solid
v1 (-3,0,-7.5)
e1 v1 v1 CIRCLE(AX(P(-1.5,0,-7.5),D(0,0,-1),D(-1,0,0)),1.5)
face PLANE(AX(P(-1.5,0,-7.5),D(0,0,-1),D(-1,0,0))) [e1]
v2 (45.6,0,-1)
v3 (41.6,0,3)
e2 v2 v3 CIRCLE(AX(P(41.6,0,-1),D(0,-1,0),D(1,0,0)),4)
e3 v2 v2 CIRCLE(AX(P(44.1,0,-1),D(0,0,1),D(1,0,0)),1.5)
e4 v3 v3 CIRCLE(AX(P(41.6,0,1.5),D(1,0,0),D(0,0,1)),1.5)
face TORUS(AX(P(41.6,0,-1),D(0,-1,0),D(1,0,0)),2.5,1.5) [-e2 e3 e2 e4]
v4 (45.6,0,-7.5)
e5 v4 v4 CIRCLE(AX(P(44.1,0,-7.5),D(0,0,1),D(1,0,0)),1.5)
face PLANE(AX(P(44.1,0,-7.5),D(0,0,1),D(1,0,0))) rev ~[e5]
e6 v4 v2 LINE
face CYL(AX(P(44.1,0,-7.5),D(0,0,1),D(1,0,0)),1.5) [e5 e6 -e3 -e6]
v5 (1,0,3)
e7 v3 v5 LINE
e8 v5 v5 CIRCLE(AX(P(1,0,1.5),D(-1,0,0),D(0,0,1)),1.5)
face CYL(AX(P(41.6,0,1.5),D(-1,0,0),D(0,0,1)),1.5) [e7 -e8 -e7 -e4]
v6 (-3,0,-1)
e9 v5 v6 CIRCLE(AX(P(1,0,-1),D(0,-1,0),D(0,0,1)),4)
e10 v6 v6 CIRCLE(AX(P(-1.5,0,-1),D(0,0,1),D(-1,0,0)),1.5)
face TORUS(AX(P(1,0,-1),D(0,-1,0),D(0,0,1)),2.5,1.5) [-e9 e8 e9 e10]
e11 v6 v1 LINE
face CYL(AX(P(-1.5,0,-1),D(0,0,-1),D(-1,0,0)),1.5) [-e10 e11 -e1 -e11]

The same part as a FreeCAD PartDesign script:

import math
import FreeCAD as App
import Part
import Sketcher

V = App.Vector
Q = App.Units.Quantity

doc = App.newDocument("Part")
body = doc.addObject("PartDesign::Body", "Body")

# Sketch on XY plane
sketch1 = doc.addObject("Sketcher::SketchObject", "Sketch")
body.addObject(sketch1)
sketch1.AttachmentSupport = (doc.XY_Plane, [""])
sketch1.MapMode = "FlatFace"
sketch1.AttachmentOffset = App.Placement(V(0, 0, -7.5), App.Rotation())
sketch1.addGeometry(Part.Circle(V(44.1, 0, 0), V(0, 0, 1), 1.5), False)
sketch1.addConstraint(Sketcher.Constraint("PointOnObject", 0, 3, -1))
sketch1.addConstraint(Sketcher.Constraint("Diameter", 0, Q("3 mm")))
sketch1.addConstraint(Sketcher.Constraint("DistanceX", -1, 1, 0, 3, Q("44.1 mm")))

# Sketch on XZ plane
sketch2 = doc.addObject("Sketcher::SketchObject", "Sketch001")
body.addObject(sketch2)
sketch2.AttachmentSupport = (doc.XZ_Plane, [""])
sketch2.MapMode = "FlatFace"
sketch2.addGeometry(Part.LineSegment(V(42.6, -7.5, 0), V(42.6, -1, 0)), False)
sketch2.addGeometry(Part.ArcOfCircle(Part.Circle(V(41.6, -1, 0), V(0, 0, 1), 1), math.radians(0), math.radians(90)), False)
sketch2.addGeometry(Part.LineSegment(V(41.6, 0, 0), V(1, 0, 0)), False)
sketch2.addGeometry(Part.ArcOfCircle(Part.Circle(V(1, -1, 0), V(0, 0, 1), 1), math.radians(90), math.radians(180)), False)
sketch2.addGeometry(Part.LineSegment(V(0, -1, 0), V(0, -7.5, 0)), False)
sketch2.addConstraint(Sketcher.Constraint("Tangent", 0, 2, 1, 1))
sketch2.addConstraint(Sketcher.Constraint("Tangent", 1, 2, 2, 1))
sketch2.addConstraint(Sketcher.Constraint("Tangent", 2, 2, 3, 1))
sketch2.addConstraint(Sketcher.Constraint("Tangent", 3, 2, 4, 1))
sketch2.addConstraint(Sketcher.Constraint("Vertical", 0))
sketch2.addConstraint(Sketcher.Constraint("Horizontal", 2))
sketch2.addConstraint(Sketcher.Constraint("Vertical", 4))
sketch2.addConstraint(Sketcher.Constraint("Equal", 1, 3))
sketch2.addConstraint(Sketcher.Constraint("PointOnObject", 1, 2, -1))
sketch2.addConstraint(Sketcher.Constraint("PointOnObject", 3, 2, -2))
sketch2.addConstraint(Sketcher.Constraint("Horizontal", 0, 1, 4, 2))
sketch2.addConstraint(Sketcher.Constraint("Radius", 1, Q("1 mm")))
sketch2.addConstraint(Sketcher.Constraint("DistanceX", 2, 2, 2, 1, Q("40.6 mm")))
sketch2.addConstraint(Sketcher.Constraint("DistanceY", 0, 1, 0, 2, Q("6.5 mm")))
doc.recompute()

additivepipe = doc.addObject("PartDesign::AdditivePipe", "AdditivePipe")
body.addObject(additivepipe)
additivepipe.Profile = sketch1
additivepipe.Spine = (sketch2, ["Edge1", "Edge2", "Edge3", "Edge4", "Edge5"])

doc.recompute()
